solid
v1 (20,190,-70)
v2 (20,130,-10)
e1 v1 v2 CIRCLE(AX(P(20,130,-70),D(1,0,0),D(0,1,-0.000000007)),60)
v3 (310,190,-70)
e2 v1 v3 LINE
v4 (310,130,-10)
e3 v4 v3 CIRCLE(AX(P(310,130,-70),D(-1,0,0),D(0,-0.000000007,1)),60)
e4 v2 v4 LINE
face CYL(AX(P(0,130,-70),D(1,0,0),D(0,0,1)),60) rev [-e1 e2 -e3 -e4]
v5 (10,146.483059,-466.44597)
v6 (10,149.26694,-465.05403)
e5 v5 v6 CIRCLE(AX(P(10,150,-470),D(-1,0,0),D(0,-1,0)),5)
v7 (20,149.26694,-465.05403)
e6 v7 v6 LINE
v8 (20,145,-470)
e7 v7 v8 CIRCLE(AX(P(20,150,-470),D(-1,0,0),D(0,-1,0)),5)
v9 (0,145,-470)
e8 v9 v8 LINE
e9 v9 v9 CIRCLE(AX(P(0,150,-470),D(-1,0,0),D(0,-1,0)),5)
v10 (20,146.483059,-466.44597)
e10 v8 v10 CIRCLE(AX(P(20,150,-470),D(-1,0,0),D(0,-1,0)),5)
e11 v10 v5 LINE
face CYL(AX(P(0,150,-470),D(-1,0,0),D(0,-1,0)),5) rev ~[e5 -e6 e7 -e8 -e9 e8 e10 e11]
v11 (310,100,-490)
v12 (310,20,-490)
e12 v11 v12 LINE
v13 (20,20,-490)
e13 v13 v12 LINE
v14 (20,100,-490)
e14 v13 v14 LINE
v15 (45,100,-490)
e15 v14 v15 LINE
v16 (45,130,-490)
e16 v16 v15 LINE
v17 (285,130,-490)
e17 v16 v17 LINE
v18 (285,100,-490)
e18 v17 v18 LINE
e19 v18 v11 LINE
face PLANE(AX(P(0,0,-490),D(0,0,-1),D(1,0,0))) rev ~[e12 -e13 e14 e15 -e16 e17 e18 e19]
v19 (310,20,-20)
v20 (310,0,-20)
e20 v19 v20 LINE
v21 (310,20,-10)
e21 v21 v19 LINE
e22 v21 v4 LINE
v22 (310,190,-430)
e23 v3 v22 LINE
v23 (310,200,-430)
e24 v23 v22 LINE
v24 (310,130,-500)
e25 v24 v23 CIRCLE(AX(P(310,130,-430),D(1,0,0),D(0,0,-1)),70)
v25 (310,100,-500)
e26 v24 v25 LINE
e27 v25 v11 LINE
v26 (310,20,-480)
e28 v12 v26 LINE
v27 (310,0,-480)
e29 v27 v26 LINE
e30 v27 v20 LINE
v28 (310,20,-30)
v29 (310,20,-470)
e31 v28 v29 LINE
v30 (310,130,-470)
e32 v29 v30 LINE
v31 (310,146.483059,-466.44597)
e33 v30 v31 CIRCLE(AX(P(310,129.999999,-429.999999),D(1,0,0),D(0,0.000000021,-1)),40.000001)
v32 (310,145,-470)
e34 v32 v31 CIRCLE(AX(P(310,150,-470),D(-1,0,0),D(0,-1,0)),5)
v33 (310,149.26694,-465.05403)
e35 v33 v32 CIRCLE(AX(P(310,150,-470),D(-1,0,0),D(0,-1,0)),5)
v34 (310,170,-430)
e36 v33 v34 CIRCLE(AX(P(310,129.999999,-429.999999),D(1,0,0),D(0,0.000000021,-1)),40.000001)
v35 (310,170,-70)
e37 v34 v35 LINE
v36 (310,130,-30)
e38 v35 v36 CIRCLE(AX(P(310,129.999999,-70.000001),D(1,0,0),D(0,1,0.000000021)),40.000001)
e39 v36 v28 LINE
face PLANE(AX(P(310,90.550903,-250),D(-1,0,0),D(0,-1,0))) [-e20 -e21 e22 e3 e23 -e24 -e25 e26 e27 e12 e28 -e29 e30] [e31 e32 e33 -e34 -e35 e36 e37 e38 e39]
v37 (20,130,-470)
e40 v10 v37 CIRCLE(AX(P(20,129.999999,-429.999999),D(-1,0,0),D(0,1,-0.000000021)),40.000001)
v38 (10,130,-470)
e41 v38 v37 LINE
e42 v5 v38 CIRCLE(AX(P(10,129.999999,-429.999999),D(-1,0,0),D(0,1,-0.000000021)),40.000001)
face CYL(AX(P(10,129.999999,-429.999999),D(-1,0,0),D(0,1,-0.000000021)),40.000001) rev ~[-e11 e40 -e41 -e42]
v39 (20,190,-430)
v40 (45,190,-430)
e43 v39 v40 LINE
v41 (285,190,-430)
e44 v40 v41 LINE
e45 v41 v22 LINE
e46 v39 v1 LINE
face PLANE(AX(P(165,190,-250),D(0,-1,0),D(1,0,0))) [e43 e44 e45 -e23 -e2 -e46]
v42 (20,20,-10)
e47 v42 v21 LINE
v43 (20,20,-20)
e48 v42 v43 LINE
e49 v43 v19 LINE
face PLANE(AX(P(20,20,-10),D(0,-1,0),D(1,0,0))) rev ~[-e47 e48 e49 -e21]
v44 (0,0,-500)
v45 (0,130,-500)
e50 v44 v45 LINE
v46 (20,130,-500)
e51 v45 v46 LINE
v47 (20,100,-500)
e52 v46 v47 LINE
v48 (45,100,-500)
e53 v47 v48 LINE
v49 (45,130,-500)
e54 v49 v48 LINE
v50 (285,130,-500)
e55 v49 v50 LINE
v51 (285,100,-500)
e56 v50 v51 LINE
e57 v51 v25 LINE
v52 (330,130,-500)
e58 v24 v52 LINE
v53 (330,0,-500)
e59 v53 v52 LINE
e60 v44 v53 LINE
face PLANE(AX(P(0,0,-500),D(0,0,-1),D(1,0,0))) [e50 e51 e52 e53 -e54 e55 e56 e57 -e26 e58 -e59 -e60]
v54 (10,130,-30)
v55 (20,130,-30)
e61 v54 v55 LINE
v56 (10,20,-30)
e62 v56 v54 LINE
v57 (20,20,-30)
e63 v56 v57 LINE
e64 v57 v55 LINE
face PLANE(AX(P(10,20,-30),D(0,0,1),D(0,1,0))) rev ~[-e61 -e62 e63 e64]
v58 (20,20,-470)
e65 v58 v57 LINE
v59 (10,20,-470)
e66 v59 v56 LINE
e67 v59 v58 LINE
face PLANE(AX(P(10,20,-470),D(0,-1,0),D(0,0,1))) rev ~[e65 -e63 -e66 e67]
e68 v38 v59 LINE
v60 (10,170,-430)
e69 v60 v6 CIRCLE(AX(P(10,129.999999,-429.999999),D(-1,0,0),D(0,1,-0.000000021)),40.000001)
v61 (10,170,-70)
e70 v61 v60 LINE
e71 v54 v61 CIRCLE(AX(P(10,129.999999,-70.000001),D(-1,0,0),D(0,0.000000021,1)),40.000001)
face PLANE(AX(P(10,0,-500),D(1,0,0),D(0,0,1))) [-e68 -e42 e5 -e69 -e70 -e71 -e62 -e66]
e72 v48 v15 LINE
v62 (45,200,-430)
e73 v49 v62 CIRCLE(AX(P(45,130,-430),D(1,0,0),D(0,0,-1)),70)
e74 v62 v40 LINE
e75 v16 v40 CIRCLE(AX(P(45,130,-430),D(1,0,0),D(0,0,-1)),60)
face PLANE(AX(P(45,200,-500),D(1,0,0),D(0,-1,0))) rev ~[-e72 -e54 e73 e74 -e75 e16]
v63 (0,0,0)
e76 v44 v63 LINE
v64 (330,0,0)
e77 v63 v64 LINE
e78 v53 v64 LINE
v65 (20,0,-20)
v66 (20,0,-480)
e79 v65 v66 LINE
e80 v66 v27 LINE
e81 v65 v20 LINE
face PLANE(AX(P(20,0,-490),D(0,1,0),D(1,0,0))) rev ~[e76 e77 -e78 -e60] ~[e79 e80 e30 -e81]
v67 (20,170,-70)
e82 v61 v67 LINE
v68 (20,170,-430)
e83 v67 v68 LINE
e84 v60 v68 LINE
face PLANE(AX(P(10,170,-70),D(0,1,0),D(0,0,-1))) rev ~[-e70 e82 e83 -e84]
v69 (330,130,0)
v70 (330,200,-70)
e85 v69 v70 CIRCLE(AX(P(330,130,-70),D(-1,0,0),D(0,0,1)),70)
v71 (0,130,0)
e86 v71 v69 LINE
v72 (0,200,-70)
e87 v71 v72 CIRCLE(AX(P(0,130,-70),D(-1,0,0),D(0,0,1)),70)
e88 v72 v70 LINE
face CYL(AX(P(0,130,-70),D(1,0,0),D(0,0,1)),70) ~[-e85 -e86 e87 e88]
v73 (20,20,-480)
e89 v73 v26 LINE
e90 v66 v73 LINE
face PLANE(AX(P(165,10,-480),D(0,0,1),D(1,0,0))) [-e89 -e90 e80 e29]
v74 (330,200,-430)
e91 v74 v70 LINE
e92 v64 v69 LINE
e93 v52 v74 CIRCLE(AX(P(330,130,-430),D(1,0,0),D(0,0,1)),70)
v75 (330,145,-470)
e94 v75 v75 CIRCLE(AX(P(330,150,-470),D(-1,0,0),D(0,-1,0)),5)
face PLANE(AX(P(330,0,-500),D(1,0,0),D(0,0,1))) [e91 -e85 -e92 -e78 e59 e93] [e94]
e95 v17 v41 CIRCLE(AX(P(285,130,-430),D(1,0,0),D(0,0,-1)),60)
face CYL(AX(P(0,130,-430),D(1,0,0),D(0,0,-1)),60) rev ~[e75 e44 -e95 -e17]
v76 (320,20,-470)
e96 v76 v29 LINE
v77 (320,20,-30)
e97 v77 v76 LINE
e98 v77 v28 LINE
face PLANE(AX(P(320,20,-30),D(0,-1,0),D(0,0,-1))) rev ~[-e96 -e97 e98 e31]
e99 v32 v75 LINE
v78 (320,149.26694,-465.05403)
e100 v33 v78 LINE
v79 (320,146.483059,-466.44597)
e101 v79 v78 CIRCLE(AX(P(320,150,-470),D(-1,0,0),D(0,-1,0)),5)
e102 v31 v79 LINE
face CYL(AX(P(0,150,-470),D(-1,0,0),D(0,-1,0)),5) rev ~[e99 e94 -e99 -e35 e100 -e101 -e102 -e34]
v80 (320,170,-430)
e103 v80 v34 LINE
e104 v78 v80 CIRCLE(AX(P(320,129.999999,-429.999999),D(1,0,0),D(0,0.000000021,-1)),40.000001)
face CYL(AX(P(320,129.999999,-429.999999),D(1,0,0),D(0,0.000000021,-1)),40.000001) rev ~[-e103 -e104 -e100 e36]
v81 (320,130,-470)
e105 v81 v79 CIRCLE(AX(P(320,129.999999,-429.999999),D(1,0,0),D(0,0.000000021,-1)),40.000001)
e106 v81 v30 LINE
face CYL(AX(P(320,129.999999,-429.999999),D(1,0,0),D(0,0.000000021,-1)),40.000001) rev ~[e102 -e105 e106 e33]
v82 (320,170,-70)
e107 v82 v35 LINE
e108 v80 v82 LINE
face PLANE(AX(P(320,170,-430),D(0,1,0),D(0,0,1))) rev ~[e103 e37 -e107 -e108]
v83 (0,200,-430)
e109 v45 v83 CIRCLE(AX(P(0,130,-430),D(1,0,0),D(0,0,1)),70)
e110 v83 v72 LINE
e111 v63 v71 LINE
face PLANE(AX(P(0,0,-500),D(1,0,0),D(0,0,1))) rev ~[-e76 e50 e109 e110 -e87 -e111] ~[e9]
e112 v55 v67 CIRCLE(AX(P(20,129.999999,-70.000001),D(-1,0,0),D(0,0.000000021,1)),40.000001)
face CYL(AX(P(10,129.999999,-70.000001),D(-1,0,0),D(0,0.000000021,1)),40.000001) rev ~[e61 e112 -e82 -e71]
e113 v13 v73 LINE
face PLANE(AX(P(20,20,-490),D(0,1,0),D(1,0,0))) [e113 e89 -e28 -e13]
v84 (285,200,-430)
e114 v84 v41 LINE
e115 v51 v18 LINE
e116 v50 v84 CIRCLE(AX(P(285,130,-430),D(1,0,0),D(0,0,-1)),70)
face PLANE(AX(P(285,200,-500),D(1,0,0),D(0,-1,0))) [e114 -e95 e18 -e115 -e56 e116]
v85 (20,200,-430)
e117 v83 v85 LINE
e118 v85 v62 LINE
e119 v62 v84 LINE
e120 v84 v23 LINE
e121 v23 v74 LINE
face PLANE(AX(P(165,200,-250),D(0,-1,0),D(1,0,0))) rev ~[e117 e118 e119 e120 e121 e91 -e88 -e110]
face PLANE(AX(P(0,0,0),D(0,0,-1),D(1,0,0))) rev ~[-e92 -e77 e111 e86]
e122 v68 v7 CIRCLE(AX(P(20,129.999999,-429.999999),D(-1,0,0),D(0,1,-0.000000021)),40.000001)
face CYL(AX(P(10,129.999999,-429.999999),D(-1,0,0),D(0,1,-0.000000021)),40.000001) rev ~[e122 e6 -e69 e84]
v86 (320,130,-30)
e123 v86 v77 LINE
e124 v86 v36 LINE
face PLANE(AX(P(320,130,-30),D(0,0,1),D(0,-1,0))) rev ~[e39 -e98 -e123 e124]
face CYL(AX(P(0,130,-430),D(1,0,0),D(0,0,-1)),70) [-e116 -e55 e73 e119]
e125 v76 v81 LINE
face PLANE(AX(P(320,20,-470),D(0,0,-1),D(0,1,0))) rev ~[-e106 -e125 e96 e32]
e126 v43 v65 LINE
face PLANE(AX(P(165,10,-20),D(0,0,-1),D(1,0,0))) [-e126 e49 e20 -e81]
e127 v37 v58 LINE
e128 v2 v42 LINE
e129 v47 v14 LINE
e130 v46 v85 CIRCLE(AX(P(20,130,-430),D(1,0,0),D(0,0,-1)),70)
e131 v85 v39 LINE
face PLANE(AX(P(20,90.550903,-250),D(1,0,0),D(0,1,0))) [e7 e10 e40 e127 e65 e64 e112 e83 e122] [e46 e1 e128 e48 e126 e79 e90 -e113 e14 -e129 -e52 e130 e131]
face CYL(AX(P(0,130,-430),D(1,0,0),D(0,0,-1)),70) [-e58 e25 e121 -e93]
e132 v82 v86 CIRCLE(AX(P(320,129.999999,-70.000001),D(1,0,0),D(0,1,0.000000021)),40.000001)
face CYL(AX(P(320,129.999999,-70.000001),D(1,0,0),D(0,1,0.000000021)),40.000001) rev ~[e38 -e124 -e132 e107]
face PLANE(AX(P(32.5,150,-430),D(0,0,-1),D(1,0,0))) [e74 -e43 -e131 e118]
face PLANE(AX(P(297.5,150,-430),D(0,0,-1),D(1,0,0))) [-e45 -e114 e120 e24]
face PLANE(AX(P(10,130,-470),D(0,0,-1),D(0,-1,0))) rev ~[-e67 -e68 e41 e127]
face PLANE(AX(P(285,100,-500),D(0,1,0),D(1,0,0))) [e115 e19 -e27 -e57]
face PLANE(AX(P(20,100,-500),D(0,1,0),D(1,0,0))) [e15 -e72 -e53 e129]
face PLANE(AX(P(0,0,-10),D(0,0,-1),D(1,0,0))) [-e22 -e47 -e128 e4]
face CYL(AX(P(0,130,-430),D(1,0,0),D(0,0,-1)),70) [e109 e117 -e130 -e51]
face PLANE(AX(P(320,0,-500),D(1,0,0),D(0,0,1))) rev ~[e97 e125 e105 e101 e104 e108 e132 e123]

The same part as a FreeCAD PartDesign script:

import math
import FreeCAD as App
import Part
import Sketcher
Q = App.Units.Quantity


def edges_at(feature, points):
    """Names of the edges that pass closest to the given points."""
    edges = feature.Shape.Edges
    near = lambda p: min(range(len(edges)), key=lambda i: edges[i].distToShape(Part.Vertex(*p))[0])
    return sorted({f"Edge{near(p) + 1}" for p in points})


def faces_at(feature, points):
    """Names of the faces that lie closest to the given points."""
    faces = feature.Shape.Faces
    near = lambda p: min(range(len(faces)), key=lambda i: faces[i].distToShape(Part.Vertex(*p))[0])
    return sorted({f"Face{near(p) + 1}" for p in points})


def add_polygon(sketch, points):
    """Adds a closed chain of lines whose ends are joined by coincident constraints."""
    first, n = sketch.GeometryCount, len(points)
    for a, b in zip(points, points[1:] + points[:1]):
        sketch.addGeometry(Part.LineSegment(App.Vector(*a, 0), App.Vector(*b, 0)), False)
    for i in range(n):
        sketch.addConstraint(Sketcher.Constraint("Coincident", first + i, 2, first + (i + 1) % n, 1))

doc = App.newDocument("Part")
body = doc.addObject("PartDesign::Body", "Body")

# Sketch on XZ plane
sketch1 = body.newObject("Sketcher::SketchObject", "Sketch")
sketch1.AttachmentSupport = (doc.getObject("XZ_Plane"), [""])
sketch1.MapMode = "FlatFace"
add_polygon(sketch1, [(0, 0), (0, -500), (330, -500), (330, 0)])  # lines 0-3
sketch1.addConstraint(Sketcher.Constraint("Vertical", 0))
sketch1.addConstraint(Sketcher.Constraint("Horizontal", 1))
sketch1.addConstraint(Sketcher.Constraint("Vertical", 2))
sketch1.addConstraint(Sketcher.Constraint("Horizontal", 3))
sketch1.addConstraint(Sketcher.Constraint("Coincident", 3, 2, -1, 1))
sketch1.addConstraint(Sketcher.Constraint("DistanceX", 1, 1, 1, 2, Q("330 mm")))
sketch1.addConstraint(Sketcher.Constraint("DistanceY", 0, 2, 0, 1, Q("500 mm")))
pad1 = body.newObject("PartDesign::Pad", "Pad")
pad1.Profile = sketch1
pad1.Length = 200
pad1.Reversed = True
doc.recompute()

fillet = body.newObject("PartDesign::Fillet", "Fillet")
fillet.Base = (pad1, edges_at(pad1, [(165, 200, 0), (165, 200, -500)]))
fillet.Radius = 70
doc.recompute()

thickness = body.newObject("PartDesign::Thickness", "Thickness")
thickness.Base = (fillet, faces_at(fillet, [(165, 0, -250)]))
thickness.Value = 10
thickness.Reversed = True
thickness.Join = "Arc"

# Sketch on YZ plane
sketch2 = body.newObject("Sketcher::SketchObject", "Sketch001")
sketch2.AttachmentSupport = (doc.getObject("YZ_Plane"), [""])
sketch2.MapMode = "FlatFace"
sketch2.AttachmentOffset = App.Placement(App.Vector(0, 0, 10), App.Rotation())
sketch2.addGeometry(Part.ArcOfCircle(Part.Circle(App.Vector(130, -70, 0), App.Vector(0, 0, 1), 60), math.radians(0), math.radians(90)), False)
sketch2.addGeometry(Part.LineSegment(App.Vector(130, -10, 0), App.Vector(0, -10, 0)), False)
sketch2.addGeometry(Part.LineSegment(App.Vector(0, -10, 0), App.Vector(0, -490, 0)), False)
sketch2.addGeometry(Part.LineSegment(App.Vector(0, -490, 0), App.Vector(130, -490, 0)), False)
sketch2.addGeometry(Part.ArcOfCircle(Part.Circle(App.Vector(130, -430, 0), App.Vector(0, 0, 1), 60), math.radians(-90), math.radians(0)), False)
sketch2.addGeometry(Part.LineSegment(App.Vector(190, -430, 0), App.Vector(190, -70, 0)), False)
sketch2.addGeometry(Part.LineSegment(App.Vector(170, -70, 0), App.Vector(170, -430, 0)), False)
sketch2.addGeometry(Part.ArcOfCircle(Part.Circle(App.Vector(129.999999, -429.999999, 0), App.Vector(0, 0, 1), 40.000001), math.radians(-89.999999), math.radians(-0.000001)), False)
sketch2.addGeometry(Part.LineSegment(App.Vector(130, -470, 0), App.Vector(20, -470, 0)), False)
sketch2.addGeometry(Part.LineSegment(App.Vector(20, -470, 0), App.Vector(20, -30, 0)), False)
sketch2.addGeometry(Part.LineSegment(App.Vector(20, -30, 0), App.Vector(130, -30, 0)), False)
sketch2.addGeometry(Part.ArcOfCircle(Part.Circle(App.Vector(129.999999, -70.000001, 0), App.Vector(0, 0, 1), 40.000001), math.radians(0.000001), math.radians(89.999999)), False)
sketch2.addConstraint(Sketcher.Constraint("Tangent", 0, 2, 1, 1))
sketch2.addConstraint(Sketcher.Constraint("Coincident", 1, 2, 2, 1))
sketch2.addConstraint(Sketcher.Constraint("Coincident", 2, 2, 3, 1))
sketch2.addConstraint(Sketcher.Constraint("Tangent", 3, 2, 4, 1))
sketch2.addConstraint(Sketcher.Constraint("Tangent", 4, 2, 5, 1))
sketch2.addConstraint(Sketcher.Constraint("Tangent", 5, 2, 0, 1))
sketch2.addConstraint(Sketcher.Constraint("Tangent", 6, 2, 7, 2))
sketch2.addConstraint(Sketcher.Constraint("Tangent", 7, 1, 8, 1))
sketch2.addConstraint(Sketcher.Constraint("Coincident", 8, 2, 9, 1))
sketch2.addConstraint(Sketcher.Constraint("Coincident", 9, 2, 10, 1))
sketch2.addConstraint(Sketcher.Constraint("Tangent", 10, 2, 11, 2))
sketch2.addConstraint(Sketcher.Constraint("Tangent", 11, 1, 6, 1))
sketch2.addConstraint(Sketcher.Constraint("Horizontal", 1))
sketch2.addConstraint(Sketcher.Constraint("Vertical", 2))
sketch2.addConstraint(Sketcher.Constraint("Horizontal", 3))
sketch2.addConstraint(Sketcher.Constraint("Vertical", 5))
sketch2.addConstraint(Sketcher.Constraint("Vertical", 6))
sketch2.addConstraint(Sketcher.Constraint("Horizontal", 8))
sketch2.addConstraint(Sketcher.Constraint("Vertical", 9))
sketch2.addConstraint(Sketcher.Constraint("Horizontal", 10))
sketch2.addConstraint(Sketcher.Constraint("Coincident", 7, 3, 4, 3))
sketch2.addConstraint(Sketcher.Constraint("Coincident", 11, 3, 0, 3))
sketch2.addConstraint(Sketcher.Constraint("Equal", 0, 4))
sketch2.addConstraint(Sketcher.Constraint("PointOnObject", 1, 2, -2))
sketch2.addConstraint(Sketcher.Constraint("Radius", 0, Q("60 mm")))
sketch2.addConstraint(Sketcher.Constraint("Radius", 7, Q("40.000001 mm")))
sketch2.addConstraint(Sketcher.Constraint("DistanceX", 1, 2, 1, 1, Q("130 mm")))
sketch2.addConstraint(Sketcher.Constraint("DistanceX", 8, 2, 8, 1, Q("110 mm")))
sketch2.addConstraint(Sketcher.Constraint("DistanceY", 2, 2, 2, 1, Q("480 mm")))
sketch2.addConstraint(Sketcher.Constraint("DistanceY", 0, 3, -1, 1, Q("70 mm")))
pad2 = body.newObject("PartDesign::Pad", "Pad001")
pad2.Profile = sketch2
pad2.Length = 10

# Sketch on YZ plane
sketch3 = body.newObject("Sketcher::SketchObject", "Sketch002")
sketch3.AttachmentSupport = (doc.getObject("YZ_Plane"), [""])
sketch3.MapMode = "FlatFace"
sketch3.AttachmentOffset = App.Placement(App.Vector(0, 0, 320), App.Rotation())
sketch3.addGeometry(Part.ArcOfCircle(Part.Circle(App.Vector(130, -430, 0), App.Vector(0, 0, 1), 60), math.radians(-90), math.radians(0)), False)
sketch3.addGeometry(Part.LineSegment(App.Vector(130, -490, 0), App.Vector(0, -490, 0)), False)
sketch3.addGeometry(Part.LineSegment(App.Vector(0, -490, 0), App.Vector(0, -10, 0)), False)
sketch3.addGeometry(Part.LineSegment(App.Vector(0, -10, 0), App.Vector(130, -10, 0)), False)
sketch3.addGeometry(Part.ArcOfCircle(Part.Circle(App.Vector(130, -70, 0), App.Vector(0, 0, 1), 60), math.radians(0), math.radians(90)), False)
sketch3.addGeometry(Part.LineSegment(App.Vector(190, -70, 0), App.Vector(190, -430, 0)), False)
sketch3.addGeometry(Part.LineSegment(App.Vector(20, -30, 0), App.Vector(20, -470, 0)), False)
sketch3.addGeometry(Part.LineSegment(App.Vector(20, -470, 0), App.Vector(130, -470, 0)), False)
sketch3.addGeometry(Part.ArcOfCircle(Part.Circle(App.Vector(129.999999, -429.999999, 0), App.Vector(0, 0, 1), 40.000001), math.radians(-89.999999), math.radians(-0.000001)), False)
sketch3.addGeometry(Part.LineSegment(App.Vector(170, -430, 0), App.Vector(170, -70, 0)), False)
sketch3.addGeometry(Part.ArcOfCircle(Part.Circle(App.Vector(129.999999, -70.000001, 0), App.Vector(0, 0, 1), 40.000001), math.radians(0.000001), math.radians(89.999999)), False)
sketch3.addGeometry(Part.LineSegment(App.Vector(130, -30, 0), App.Vector(20, -30, 0)), False)
sketch3.addConstraint(Sketcher.Constraint("Tangent", 0, 1, 1, 1))
sketch3.addConstraint(Sketcher.Constraint("Coincident", 1, 2, 2, 1))
sketch3.addConstraint(Sketcher.Constraint("Coincident", 2, 2, 3, 1))
sketch3.addConstraint(Sketcher.Constraint("Tangent", 3, 2, 4, 2))
sketch3.addConstraint(Sketcher.Constraint("Tangent", 4, 1, 5, 1))
sketch3.addConstraint(Sketcher.Constraint("Tangent", 5, 2, 0, 2))
sketch3.addConstraint(Sketcher.Constraint("Coincident", 6, 2, 7, 1))
sketch3.addConstraint(Sketcher.Constraint("Tangent", 7, 2, 8, 1))
sketch3.addConstraint(Sketcher.Constraint("Tangent", 8, 2, 9, 1))
sketch3.addConstraint(Sketcher.Constraint("Tangent", 9, 2, 10, 1))
sketch3.addConstraint(Sketcher.Constraint("Tangent", 10, 2, 11, 1))
sketch3.addConstraint(Sketcher.Constraint("Coincident", 11, 2, 6, 1))
sketch3.addConstraint(Sketcher.Constraint("Horizontal", 1))
sketch3.addConstraint(Sketcher.Constraint("Vertical", 2))
sketch3.addConstraint(Sketcher.Constraint("Horizontal", 3))
sketch3.addConstraint(Sketcher.Constraint("Vertical", 5))
sketch3.addConstraint(Sketcher.Constraint("Vertical", 6))
sketch3.addConstraint(Sketcher.Constraint("Horizontal", 7))
sketch3.addConstraint(Sketcher.Constraint("Vertical", 9))
sketch3.addConstraint(Sketcher.Constraint("Horizontal", 11))
sketch3.addConstraint(Sketcher.Constraint("Coincident", 8, 3, 0, 3))
sketch3.addConstraint(Sketcher.Constraint("Coincident", 10, 3, 4, 3))
sketch3.addConstraint(Sketcher.Constraint("Equal", 0, 4))
sketch3.addConstraint(Sketcher.Constraint("PointOnObject", 1, 2, -2))
sketch3.addConstraint(Sketcher.Constraint("Radius", 0, Q("60 mm")))
sketch3.addConstraint(Sketcher.Constraint("Radius", 8, Q("40.000001 mm")))
sketch3.addConstraint(Sketcher.Constraint("DistanceX", 1, 2, 1, 1, Q("130 mm")))
sketch3.addConstraint(Sketcher.Constraint("DistanceX", 7, 1, 7, 2, Q("110 mm")))
sketch3.addConstraint(Sketcher.Constraint("DistanceY", 2, 1, 2, 2, Q("480 mm")))
sketch3.addConstraint(Sketcher.Constraint("DistanceY", 0, 3, -1, 1, Q("430 mm")))
pad3 = body.newObject("PartDesign::Pad", "Pad002")
pad3.Profile = sketch3
pad3.Length = 10
pad3.Reversed = True

# Sketch on XY plane
sketch4 = body.newObject("Sketcher::SketchObject", "Sketch003")
sketch4.AttachmentSupport = (doc.getObject("XY_Plane"), [""])
sketch4.MapMode = "FlatFace"
sketch4.AttachmentOffset = App.Placement(App.Vector(0, 0, -490), App.Rotation())
add_polygon(sketch4, [(20, 20), (20, 0), (310, 0), (310, 20)])  # lines 0-3
sketch4.addConstraint(Sketcher.Constraint("Vertical", 0))
sketch4.addConstraint(Sketcher.Constraint("Horizontal", 1))
sketch4.addConstraint(Sketcher.Constraint("Vertical", 2))
sketch4.addConstraint(Sketcher.Constraint("Horizontal", 3))
sketch4.addConstraint(Sketcher.Constraint("PointOnObject", 0, 2, -1))
sketch4.addConstraint(Sketcher.Constraint("DistanceX", 1, 1, 1, 2, Q("290 mm")))
sketch4.addConstraint(Sketcher.Constraint("DistanceY", 0, 2, 0, 1, Q("20 mm")))
sketch4.addConstraint(Sketcher.Constraint("DistanceX", -1, 1, 0, 2, Q("20 mm")))
pad4 = body.newObject("PartDesign::Pad", "Pad003")
pad4.Profile = sketch4
pad4.Length = 10

# Sketch on XY plane
sketch5 = body.newObject("Sketcher::SketchObject", "Sketch004")
sketch5.AttachmentSupport = (doc.getObject("XY_Plane"), [""])
sketch5.MapMode = "FlatFace"
sketch5.AttachmentOffset = App.Placement(App.Vector(0, 0, -10), App.Rotation())
add_polygon(sketch5, [(20, 0), (20, 20), (310, 20), (310, 0)])  # lines 0-3
sketch5.addConstraint(Sketcher.Constraint("Vertical", 0))
sketch5.addConstraint(Sketcher.Constraint("Horizontal", 1))
sketch5.addConstraint(Sketcher.Constraint("Vertical", 2))
sketch5.addConstraint(Sketcher.Constraint("Horizontal", 3))
sketch5.addConstraint(Sketcher.Constraint("PointOnObject", 2, 2, -1))
sketch5.addConstraint(Sketcher.Constraint("DistanceX", 1, 1, 1, 2, Q("290 mm")))
sketch5.addConstraint(Sketcher.Constraint("DistanceY", 0, 1, 0, 2, Q("20 mm")))
sketch5.addConstraint(Sketcher.Constraint("DistanceX", -1, 1, 0, 2, Q("20 mm")))
pad5 = body.newObject("PartDesign::Pad", "Pad004")
pad5.Profile = sketch5
pad5.Length = 10
pad5.Reversed = True

# Sketch on XY plane
sketch6 = body.newObject("Sketcher::SketchObject", "Sketch005")
sketch6.AttachmentSupport = (doc.getObject("XY_Plane"), [""])
sketch6.MapMode = "FlatFace"
sketch6.AttachmentOffset = App.Placement(App.Vector(0, 0, -500), App.Rotation())
add_polygon(sketch6, [(20, 100), (20, 200), (45, 200), (45, 100)])  # lines 0-3
add_polygon(sketch6, [(285, 100), (285, 200), (310, 200), (310, 100)])  # lines 4-7
sketch6.addConstraint(Sketcher.Constraint("Vertical", 0))
sketch6.addConstraint(Sketcher.Constraint("Horizontal", 1))
sketch6.addConstraint(Sketcher.Constraint("Vertical", 2))
sketch6.addConstraint(Sketcher.Constraint("Horizontal", 3))
sketch6.addConstraint(Sketcher.Constraint("Vertical", 4))
sketch6.addConstraint(Sketcher.Constraint("Horizontal", 5))
sketch6.addConstraint(Sketcher.Constraint("Vertical", 6))
sketch6.addConstraint(Sketcher.Constraint("Horizontal", 7))
sketch6.addConstraint(Sketcher.Constraint("Horizontal", 1, 2, 4, 2))
sketch6.addConstraint(Sketcher.Constraint("Horizontal", 3, 2, 6, 2))
sketch6.addConstraint(Sketcher.Constraint("Equal", 3, 5))
sketch6.addConstraint(Sketcher.Constraint("DistanceX", 1, 1, 1, 2, Q("25 mm")))
sketch6.addConstraint(Sketcher.Constraint("DistanceY", 0, 1, 0, 2, Q("100 mm")))
sketch6.addConstraint(Sketcher.Constraint("DistanceX", -1, 1, 0, 2, Q("20 mm")))
sketch6.addConstraint(Sketcher.Constraint("DistanceY", -1, 1, 0, 2, Q("200 mm")))
sketch6.addConstraint(Sketcher.Constraint("DistanceX", -1, 1, 4, 2, Q("285 mm")))
pocket1 = body.newObject("PartDesign::Pocket", "Pocket")
pocket1.Profile = sketch6
pocket1.Length = 70
pocket1.Reversed = True

# Sketch on YZ plane
sketch7 = body.newObject("Sketcher::SketchObject", "Sketch006")
sketch7.AttachmentSupport = (doc.getObject("YZ_Plane"), [""])
sketch7.MapMode = "FlatFace"
sketch7.addGeometry(Part.Circle(App.Vector(150, -470, 0), App.Vector(0, 0, 1), 5), False)
sketch7.addConstraint(Sketcher.Constraint("Diameter", 0, Q("10 mm")))
sketch7.addConstraint(Sketcher.Constraint("DistanceX", -1, 1, 0, 3, Q("150 mm")))
sketch7.addConstraint(Sketcher.Constraint("DistanceY", 0, 3, -1, 1, Q("470 mm")))
pocket2 = body.newObject("PartDesign::Pocket", "Pocket001")
pocket2.Profile = sketch7
pocket2.Type = "ThroughAll"
pocket2.Reversed = True

doc.recompute()
